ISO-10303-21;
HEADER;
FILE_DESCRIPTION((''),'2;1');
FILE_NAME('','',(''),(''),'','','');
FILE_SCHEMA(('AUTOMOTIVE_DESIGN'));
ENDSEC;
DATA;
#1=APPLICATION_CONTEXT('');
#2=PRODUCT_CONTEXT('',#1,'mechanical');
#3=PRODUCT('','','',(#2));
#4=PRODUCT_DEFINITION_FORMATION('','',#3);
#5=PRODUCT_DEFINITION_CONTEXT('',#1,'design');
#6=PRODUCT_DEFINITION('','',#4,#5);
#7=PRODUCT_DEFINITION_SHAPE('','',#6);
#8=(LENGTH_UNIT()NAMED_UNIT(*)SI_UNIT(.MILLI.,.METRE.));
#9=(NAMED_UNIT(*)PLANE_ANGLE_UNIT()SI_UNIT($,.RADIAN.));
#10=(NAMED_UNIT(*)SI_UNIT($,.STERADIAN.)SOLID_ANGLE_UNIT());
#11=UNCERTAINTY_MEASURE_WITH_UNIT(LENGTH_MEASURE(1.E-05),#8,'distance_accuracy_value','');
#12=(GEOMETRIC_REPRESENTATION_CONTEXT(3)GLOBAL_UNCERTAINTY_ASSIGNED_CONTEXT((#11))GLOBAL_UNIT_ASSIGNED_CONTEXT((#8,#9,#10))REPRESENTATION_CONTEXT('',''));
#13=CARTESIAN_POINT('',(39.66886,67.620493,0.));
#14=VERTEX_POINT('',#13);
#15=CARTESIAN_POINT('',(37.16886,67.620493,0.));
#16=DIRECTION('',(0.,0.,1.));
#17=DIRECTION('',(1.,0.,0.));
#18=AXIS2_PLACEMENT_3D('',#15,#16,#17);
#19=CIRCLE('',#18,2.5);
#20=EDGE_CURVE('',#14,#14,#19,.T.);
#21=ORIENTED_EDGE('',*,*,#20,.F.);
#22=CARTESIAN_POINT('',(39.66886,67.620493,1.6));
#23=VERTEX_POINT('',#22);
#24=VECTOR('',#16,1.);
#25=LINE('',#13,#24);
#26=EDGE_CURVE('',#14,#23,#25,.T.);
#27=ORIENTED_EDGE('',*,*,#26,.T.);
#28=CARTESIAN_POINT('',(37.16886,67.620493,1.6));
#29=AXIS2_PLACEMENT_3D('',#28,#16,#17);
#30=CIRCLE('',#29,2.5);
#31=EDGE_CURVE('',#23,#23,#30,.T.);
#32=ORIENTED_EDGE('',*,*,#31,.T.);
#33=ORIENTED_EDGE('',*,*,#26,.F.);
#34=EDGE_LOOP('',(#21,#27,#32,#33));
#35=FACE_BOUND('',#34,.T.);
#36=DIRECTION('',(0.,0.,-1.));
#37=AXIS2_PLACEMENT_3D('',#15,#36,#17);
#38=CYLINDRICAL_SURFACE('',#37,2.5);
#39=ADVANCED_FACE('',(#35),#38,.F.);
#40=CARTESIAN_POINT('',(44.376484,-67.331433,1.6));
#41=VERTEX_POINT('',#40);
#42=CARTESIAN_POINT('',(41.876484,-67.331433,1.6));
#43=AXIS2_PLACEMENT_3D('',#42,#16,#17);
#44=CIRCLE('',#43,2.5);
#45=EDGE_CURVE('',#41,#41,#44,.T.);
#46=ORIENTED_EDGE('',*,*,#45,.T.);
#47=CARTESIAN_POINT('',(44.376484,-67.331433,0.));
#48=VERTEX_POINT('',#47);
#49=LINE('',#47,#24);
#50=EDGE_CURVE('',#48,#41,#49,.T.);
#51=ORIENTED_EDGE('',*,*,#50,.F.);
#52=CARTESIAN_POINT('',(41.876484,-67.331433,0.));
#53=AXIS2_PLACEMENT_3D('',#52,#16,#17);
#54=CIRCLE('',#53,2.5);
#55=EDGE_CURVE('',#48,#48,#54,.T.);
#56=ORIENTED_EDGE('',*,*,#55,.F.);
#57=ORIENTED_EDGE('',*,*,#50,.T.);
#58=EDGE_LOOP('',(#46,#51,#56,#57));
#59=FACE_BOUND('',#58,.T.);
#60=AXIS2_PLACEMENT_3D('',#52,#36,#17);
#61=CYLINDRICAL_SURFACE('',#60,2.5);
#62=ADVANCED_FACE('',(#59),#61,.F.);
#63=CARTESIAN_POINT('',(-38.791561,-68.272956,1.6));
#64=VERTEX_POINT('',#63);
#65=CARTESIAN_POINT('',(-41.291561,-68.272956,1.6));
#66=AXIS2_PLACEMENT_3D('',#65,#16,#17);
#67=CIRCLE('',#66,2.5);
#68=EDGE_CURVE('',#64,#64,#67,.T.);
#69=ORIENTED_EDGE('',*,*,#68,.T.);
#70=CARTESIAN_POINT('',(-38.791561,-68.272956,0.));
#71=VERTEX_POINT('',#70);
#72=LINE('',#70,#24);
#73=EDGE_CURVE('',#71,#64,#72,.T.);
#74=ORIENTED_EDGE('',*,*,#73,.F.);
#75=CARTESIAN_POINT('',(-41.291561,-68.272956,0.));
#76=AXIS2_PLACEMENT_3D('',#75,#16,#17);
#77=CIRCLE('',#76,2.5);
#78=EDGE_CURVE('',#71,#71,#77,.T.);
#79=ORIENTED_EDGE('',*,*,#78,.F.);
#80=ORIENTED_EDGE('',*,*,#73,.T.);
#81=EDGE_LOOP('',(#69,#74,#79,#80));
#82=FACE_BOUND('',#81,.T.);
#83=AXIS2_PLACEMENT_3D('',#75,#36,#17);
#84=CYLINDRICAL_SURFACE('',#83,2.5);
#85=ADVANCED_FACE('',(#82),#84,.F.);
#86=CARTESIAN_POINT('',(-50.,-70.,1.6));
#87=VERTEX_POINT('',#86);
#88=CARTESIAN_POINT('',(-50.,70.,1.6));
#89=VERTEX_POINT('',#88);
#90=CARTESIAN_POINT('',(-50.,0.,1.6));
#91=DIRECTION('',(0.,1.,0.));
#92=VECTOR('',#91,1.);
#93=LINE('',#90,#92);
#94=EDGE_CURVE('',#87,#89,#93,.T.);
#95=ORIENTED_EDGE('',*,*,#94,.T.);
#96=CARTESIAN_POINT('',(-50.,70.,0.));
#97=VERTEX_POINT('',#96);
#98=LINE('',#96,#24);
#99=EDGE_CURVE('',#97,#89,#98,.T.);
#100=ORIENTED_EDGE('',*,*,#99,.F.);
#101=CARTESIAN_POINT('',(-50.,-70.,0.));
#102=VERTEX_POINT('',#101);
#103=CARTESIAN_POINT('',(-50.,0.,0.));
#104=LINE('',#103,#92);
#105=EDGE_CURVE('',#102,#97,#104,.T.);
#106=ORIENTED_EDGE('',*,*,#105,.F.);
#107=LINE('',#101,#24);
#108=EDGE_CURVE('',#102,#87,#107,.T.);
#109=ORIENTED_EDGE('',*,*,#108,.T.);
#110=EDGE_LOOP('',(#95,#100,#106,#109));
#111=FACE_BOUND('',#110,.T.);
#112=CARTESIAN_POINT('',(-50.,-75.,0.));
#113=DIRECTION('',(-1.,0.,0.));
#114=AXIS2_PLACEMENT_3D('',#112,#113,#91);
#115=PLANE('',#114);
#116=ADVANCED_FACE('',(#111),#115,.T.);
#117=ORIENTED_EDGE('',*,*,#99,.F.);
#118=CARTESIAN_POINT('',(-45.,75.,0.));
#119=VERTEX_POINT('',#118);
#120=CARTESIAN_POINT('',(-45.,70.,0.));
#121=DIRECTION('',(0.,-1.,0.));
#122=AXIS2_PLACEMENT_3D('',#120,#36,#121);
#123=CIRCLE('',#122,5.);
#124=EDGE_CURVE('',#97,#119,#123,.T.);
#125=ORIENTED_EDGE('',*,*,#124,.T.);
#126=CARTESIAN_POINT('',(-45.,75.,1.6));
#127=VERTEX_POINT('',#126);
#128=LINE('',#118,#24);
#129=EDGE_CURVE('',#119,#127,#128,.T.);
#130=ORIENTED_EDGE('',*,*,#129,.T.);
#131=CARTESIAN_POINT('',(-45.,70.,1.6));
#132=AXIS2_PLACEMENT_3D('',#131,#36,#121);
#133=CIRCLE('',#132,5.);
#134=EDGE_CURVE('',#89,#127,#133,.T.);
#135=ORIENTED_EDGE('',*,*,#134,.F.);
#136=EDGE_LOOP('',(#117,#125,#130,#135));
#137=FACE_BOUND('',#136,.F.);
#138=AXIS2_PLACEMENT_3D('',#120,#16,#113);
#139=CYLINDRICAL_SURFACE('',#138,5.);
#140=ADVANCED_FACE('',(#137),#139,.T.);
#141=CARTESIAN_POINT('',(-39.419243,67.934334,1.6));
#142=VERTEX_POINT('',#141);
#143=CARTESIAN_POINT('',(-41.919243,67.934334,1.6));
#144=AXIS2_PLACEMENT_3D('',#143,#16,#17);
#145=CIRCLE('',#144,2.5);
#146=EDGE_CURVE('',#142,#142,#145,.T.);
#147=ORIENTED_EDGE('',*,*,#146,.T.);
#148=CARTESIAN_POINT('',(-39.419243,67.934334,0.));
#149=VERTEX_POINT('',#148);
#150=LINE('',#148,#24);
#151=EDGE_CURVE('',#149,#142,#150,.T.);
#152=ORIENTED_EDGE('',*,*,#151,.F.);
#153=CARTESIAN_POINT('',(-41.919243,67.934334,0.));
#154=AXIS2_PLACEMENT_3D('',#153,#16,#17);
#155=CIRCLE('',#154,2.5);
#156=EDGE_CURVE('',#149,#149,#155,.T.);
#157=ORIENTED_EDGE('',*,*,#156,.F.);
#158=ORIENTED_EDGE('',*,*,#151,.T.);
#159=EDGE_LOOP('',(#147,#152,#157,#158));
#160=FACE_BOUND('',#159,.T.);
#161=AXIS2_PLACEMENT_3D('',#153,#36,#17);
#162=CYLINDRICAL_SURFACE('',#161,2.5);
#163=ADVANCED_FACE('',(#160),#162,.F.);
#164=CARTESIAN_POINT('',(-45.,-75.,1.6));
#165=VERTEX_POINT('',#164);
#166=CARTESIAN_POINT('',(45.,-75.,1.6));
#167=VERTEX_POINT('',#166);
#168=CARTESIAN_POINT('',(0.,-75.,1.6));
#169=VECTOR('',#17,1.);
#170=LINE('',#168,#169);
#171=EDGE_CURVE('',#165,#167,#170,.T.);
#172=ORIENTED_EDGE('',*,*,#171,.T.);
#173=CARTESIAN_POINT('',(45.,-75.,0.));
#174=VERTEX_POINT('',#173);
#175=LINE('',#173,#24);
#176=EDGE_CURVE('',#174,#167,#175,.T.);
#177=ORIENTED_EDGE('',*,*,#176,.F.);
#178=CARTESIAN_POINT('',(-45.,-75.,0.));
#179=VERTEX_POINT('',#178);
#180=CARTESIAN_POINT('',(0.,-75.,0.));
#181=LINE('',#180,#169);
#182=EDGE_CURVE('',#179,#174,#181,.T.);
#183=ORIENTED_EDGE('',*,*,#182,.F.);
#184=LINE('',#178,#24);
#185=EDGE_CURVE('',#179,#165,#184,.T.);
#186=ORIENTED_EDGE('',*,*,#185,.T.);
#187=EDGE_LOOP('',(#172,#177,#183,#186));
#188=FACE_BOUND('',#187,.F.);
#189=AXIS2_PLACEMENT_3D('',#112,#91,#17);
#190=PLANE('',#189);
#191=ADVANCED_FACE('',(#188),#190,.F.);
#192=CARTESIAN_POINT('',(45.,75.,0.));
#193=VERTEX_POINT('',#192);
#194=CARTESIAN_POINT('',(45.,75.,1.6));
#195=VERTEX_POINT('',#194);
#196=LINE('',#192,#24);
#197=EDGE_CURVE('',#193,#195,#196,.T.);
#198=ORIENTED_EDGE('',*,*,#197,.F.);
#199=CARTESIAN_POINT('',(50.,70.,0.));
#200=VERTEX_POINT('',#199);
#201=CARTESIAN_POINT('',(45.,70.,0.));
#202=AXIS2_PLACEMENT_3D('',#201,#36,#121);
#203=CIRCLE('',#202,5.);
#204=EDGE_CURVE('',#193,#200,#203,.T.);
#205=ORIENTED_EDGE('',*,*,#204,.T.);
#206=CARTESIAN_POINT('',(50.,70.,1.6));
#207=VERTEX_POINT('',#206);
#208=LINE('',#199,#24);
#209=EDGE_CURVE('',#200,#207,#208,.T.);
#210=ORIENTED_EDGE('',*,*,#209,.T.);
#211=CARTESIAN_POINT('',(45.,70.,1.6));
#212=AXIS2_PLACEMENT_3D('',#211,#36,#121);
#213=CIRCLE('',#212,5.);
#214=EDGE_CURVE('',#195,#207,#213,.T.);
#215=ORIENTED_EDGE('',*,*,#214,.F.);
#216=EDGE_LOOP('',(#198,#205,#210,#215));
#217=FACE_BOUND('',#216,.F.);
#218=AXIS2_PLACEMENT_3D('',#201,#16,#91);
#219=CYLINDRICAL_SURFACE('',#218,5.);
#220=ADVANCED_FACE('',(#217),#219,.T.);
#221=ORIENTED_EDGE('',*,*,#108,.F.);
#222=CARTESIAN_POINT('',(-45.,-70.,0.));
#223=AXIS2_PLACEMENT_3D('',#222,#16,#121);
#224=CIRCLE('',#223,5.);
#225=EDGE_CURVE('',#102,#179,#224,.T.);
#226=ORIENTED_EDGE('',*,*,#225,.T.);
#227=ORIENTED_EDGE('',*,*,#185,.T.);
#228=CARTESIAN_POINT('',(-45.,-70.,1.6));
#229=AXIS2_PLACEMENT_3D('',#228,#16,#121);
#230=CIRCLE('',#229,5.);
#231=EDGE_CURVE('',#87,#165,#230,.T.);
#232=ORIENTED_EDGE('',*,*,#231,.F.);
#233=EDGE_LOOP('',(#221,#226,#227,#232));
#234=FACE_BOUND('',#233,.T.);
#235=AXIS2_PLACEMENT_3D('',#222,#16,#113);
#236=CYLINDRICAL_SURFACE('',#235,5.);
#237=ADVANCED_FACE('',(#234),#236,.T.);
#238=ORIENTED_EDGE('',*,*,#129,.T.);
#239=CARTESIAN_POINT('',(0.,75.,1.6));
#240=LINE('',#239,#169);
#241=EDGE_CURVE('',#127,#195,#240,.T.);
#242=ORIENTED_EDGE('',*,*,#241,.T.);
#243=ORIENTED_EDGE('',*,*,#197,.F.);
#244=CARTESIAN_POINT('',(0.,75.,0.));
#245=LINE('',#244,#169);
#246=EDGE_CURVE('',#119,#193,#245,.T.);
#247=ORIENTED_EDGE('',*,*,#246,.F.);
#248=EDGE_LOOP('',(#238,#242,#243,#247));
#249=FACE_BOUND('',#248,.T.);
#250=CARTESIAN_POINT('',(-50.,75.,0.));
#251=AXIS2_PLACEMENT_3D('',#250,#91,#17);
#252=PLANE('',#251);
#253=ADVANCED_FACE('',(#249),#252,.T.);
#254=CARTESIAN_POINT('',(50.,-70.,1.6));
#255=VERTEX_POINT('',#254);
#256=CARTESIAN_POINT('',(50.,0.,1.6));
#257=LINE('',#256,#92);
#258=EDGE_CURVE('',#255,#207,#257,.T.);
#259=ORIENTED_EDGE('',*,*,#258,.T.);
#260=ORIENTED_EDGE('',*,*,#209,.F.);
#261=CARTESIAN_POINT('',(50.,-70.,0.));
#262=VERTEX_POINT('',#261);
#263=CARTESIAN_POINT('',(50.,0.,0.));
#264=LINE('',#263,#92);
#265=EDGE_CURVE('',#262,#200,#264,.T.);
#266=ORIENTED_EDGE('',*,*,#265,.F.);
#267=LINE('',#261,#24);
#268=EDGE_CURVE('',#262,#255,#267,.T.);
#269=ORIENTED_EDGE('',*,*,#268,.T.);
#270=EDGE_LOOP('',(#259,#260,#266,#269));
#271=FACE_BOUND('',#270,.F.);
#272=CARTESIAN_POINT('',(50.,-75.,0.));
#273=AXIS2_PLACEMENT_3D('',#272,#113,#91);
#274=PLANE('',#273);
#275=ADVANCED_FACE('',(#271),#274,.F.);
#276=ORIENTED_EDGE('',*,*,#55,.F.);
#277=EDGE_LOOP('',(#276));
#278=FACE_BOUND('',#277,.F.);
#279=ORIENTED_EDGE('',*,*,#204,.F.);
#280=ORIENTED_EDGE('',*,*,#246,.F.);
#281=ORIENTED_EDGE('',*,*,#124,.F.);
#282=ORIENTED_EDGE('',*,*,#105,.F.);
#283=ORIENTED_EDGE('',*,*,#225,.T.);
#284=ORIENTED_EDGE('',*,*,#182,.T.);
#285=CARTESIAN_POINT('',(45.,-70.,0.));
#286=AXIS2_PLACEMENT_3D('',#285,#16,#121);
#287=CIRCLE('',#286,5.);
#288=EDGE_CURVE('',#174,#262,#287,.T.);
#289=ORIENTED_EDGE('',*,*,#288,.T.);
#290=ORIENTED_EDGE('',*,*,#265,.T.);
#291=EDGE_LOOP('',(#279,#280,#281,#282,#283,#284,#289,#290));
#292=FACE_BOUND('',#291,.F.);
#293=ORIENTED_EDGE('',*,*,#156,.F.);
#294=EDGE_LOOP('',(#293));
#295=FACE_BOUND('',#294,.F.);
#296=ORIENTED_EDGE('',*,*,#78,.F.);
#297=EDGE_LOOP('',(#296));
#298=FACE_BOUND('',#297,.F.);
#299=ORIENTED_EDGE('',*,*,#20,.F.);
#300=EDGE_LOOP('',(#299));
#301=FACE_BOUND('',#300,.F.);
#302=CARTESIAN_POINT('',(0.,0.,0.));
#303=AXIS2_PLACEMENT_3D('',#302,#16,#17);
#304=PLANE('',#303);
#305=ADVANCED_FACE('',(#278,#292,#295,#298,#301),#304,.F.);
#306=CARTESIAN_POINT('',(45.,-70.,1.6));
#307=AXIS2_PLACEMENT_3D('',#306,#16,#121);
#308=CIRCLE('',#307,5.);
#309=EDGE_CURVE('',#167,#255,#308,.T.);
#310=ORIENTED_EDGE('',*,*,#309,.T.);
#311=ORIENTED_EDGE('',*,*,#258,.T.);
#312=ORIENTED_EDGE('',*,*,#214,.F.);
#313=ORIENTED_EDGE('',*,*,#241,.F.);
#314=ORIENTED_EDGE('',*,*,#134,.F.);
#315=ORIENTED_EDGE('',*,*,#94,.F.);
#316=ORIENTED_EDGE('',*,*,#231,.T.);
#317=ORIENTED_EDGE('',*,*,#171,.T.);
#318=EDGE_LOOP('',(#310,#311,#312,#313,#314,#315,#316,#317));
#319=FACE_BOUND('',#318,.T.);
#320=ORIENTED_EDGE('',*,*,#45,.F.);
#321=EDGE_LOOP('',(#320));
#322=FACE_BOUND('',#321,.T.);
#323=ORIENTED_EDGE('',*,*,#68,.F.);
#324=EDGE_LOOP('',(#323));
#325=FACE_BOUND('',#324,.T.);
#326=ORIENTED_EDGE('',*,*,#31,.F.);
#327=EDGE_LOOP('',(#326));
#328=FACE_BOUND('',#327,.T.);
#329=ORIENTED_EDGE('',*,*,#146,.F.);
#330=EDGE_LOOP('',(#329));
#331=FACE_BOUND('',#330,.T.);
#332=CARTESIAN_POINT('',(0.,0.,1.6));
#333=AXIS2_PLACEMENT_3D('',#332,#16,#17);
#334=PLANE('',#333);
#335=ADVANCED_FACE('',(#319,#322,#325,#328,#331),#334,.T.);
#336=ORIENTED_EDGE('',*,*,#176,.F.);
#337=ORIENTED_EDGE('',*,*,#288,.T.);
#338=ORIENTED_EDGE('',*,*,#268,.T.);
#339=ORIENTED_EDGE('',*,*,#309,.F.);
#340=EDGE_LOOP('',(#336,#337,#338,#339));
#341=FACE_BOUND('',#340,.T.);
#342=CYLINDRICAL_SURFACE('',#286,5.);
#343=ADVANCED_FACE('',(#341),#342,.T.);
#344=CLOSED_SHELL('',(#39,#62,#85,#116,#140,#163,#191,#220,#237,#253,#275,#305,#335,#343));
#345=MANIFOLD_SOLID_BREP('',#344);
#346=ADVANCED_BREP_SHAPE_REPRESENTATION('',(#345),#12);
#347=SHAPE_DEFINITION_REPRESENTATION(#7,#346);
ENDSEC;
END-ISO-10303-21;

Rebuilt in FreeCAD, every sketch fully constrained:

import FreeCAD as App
import Part
import Sketcher


def edges_at(feature, points):
    """Names of the edges that pass closest to the given points."""
    edges = feature.Shape.Edges
    near = lambda p: min(range(len(edges)), key=lambda i: edges[i].distToShape(Part.Vertex(*p))[0])
    return sorted({f"Edge{near(p) + 1}" for p in points})

doc = App.newDocument("Part")
body = doc.addObject("PartDesign::Body", "Body")

# Sketch on XY plane
sketch1 = doc.addObject("Sketcher::SketchObject", "Sketch")
body.addObject(sketch1)
sketch1.AttachmentSupport = (doc.XY_Plane, [""])
sketch1.MapMode = "FlatFace"
sketch1.addGeometry([
    Part.LineSegment(App.Vector(-50, 75, 0), App.Vector(-50, -75, 0)),  # 0
    Part.LineSegment(App.Vector(-50, -75, 0), App.Vector(50, -75, 0)),  # 1
    Part.LineSegment(App.Vector(50, -75, 0), App.Vector(50, 75, 0)),  # 2
    Part.LineSegment(App.Vector(50, 75, 0), App.Vector(-50, 75, 0)),  # 3
    Part.Circle(App.Vector(-41.3, -68.3, 0), App.Vector(0, 0, 1), 2.5),  # 4
    Part.Circle(App.Vector(41.9, -67.3, 0), App.Vector(0, 0, 1), 2.5),  # 5
    Part.Circle(App.Vector(-41.9, 67.9, 0), App.Vector(0, 0, 1), 2.5),  # 6
    Part.Circle(App.Vector(37.2, 67.6, 0), App.Vector(0, 0, 1), 2.5),  # 7
], False)
sketch1.addConstraint([
    Sketcher.Constraint("Coincident", 0, 2, 1, 1),
    Sketcher.Constraint("Coincident", 1, 2, 2, 1),
    Sketcher.Constraint("Coincident", 2, 2, 3, 1),
    Sketcher.Constraint("Coincident", 3, 2, 0, 1),
    Sketcher.Constraint("Vertical", 0),
    Sketcher.Constraint("Horizontal", 1),
    Sketcher.Constraint("Vertical", 2),
    Sketcher.Constraint("Horizontal", 3),
    Sketcher.Constraint("Equal", 4, 5),
    Sketcher.Constraint("Equal", 5, 6),
    Sketcher.Constraint("Equal", 6, 7),
    Sketcher.Constraint("Symmetric", 0, 2, 2, 2, -1, 1),
    Sketcher.Constraint("Diameter", 4, 5.0),
    Sketcher.Constraint("DistanceX", 1, 1, 1, 2, 100.0),
    Sketcher.Constraint("DistanceY", 0, 2, 0, 1, 150.0),
    Sketcher.Constraint("DistanceX", 4, 3, -1, 1, 41.291561),
    Sketcher.Constraint("DistanceX", -1, 1, 7, 3, 37.16886),
    Sketcher.Constraint("DistanceY", 4, 3, 6, 3, 136.20729),
    Sketcher.Constraint("DistanceY", 7, 3, 6, 3, 0.313841),
    Sketcher.Constraint("DistanceY", 4, 3, -1, 1, 68.272956),
    Sketcher.Constraint("DistanceX", -1, 1, 5, 3, 41.876484),
    Sketcher.Constraint("DistanceY", 5, 3, -1, 1, 67.331433),
    Sketcher.Constraint("DistanceX", 6, 3, -1, 1, 41.919243),
])
pad1 = doc.addObject("PartDesign::Pad", "Pad")
body.addObject(pad1)
pad1.Profile = sketch1
pad1.Length = 1.6
doc.recompute()

fillet = doc.addObject("PartDesign::Fillet", "Fillet")
body.addObject(fillet)
fillet.Base = (pad1, edges_at(pad1, [
    (-50, 75, 0.8),
    (-50, -75, 0.8),
    (50, -75, 0.8),
    (50, 75, 0.8),
]))
fillet.Radius = 5

doc.recompute()
